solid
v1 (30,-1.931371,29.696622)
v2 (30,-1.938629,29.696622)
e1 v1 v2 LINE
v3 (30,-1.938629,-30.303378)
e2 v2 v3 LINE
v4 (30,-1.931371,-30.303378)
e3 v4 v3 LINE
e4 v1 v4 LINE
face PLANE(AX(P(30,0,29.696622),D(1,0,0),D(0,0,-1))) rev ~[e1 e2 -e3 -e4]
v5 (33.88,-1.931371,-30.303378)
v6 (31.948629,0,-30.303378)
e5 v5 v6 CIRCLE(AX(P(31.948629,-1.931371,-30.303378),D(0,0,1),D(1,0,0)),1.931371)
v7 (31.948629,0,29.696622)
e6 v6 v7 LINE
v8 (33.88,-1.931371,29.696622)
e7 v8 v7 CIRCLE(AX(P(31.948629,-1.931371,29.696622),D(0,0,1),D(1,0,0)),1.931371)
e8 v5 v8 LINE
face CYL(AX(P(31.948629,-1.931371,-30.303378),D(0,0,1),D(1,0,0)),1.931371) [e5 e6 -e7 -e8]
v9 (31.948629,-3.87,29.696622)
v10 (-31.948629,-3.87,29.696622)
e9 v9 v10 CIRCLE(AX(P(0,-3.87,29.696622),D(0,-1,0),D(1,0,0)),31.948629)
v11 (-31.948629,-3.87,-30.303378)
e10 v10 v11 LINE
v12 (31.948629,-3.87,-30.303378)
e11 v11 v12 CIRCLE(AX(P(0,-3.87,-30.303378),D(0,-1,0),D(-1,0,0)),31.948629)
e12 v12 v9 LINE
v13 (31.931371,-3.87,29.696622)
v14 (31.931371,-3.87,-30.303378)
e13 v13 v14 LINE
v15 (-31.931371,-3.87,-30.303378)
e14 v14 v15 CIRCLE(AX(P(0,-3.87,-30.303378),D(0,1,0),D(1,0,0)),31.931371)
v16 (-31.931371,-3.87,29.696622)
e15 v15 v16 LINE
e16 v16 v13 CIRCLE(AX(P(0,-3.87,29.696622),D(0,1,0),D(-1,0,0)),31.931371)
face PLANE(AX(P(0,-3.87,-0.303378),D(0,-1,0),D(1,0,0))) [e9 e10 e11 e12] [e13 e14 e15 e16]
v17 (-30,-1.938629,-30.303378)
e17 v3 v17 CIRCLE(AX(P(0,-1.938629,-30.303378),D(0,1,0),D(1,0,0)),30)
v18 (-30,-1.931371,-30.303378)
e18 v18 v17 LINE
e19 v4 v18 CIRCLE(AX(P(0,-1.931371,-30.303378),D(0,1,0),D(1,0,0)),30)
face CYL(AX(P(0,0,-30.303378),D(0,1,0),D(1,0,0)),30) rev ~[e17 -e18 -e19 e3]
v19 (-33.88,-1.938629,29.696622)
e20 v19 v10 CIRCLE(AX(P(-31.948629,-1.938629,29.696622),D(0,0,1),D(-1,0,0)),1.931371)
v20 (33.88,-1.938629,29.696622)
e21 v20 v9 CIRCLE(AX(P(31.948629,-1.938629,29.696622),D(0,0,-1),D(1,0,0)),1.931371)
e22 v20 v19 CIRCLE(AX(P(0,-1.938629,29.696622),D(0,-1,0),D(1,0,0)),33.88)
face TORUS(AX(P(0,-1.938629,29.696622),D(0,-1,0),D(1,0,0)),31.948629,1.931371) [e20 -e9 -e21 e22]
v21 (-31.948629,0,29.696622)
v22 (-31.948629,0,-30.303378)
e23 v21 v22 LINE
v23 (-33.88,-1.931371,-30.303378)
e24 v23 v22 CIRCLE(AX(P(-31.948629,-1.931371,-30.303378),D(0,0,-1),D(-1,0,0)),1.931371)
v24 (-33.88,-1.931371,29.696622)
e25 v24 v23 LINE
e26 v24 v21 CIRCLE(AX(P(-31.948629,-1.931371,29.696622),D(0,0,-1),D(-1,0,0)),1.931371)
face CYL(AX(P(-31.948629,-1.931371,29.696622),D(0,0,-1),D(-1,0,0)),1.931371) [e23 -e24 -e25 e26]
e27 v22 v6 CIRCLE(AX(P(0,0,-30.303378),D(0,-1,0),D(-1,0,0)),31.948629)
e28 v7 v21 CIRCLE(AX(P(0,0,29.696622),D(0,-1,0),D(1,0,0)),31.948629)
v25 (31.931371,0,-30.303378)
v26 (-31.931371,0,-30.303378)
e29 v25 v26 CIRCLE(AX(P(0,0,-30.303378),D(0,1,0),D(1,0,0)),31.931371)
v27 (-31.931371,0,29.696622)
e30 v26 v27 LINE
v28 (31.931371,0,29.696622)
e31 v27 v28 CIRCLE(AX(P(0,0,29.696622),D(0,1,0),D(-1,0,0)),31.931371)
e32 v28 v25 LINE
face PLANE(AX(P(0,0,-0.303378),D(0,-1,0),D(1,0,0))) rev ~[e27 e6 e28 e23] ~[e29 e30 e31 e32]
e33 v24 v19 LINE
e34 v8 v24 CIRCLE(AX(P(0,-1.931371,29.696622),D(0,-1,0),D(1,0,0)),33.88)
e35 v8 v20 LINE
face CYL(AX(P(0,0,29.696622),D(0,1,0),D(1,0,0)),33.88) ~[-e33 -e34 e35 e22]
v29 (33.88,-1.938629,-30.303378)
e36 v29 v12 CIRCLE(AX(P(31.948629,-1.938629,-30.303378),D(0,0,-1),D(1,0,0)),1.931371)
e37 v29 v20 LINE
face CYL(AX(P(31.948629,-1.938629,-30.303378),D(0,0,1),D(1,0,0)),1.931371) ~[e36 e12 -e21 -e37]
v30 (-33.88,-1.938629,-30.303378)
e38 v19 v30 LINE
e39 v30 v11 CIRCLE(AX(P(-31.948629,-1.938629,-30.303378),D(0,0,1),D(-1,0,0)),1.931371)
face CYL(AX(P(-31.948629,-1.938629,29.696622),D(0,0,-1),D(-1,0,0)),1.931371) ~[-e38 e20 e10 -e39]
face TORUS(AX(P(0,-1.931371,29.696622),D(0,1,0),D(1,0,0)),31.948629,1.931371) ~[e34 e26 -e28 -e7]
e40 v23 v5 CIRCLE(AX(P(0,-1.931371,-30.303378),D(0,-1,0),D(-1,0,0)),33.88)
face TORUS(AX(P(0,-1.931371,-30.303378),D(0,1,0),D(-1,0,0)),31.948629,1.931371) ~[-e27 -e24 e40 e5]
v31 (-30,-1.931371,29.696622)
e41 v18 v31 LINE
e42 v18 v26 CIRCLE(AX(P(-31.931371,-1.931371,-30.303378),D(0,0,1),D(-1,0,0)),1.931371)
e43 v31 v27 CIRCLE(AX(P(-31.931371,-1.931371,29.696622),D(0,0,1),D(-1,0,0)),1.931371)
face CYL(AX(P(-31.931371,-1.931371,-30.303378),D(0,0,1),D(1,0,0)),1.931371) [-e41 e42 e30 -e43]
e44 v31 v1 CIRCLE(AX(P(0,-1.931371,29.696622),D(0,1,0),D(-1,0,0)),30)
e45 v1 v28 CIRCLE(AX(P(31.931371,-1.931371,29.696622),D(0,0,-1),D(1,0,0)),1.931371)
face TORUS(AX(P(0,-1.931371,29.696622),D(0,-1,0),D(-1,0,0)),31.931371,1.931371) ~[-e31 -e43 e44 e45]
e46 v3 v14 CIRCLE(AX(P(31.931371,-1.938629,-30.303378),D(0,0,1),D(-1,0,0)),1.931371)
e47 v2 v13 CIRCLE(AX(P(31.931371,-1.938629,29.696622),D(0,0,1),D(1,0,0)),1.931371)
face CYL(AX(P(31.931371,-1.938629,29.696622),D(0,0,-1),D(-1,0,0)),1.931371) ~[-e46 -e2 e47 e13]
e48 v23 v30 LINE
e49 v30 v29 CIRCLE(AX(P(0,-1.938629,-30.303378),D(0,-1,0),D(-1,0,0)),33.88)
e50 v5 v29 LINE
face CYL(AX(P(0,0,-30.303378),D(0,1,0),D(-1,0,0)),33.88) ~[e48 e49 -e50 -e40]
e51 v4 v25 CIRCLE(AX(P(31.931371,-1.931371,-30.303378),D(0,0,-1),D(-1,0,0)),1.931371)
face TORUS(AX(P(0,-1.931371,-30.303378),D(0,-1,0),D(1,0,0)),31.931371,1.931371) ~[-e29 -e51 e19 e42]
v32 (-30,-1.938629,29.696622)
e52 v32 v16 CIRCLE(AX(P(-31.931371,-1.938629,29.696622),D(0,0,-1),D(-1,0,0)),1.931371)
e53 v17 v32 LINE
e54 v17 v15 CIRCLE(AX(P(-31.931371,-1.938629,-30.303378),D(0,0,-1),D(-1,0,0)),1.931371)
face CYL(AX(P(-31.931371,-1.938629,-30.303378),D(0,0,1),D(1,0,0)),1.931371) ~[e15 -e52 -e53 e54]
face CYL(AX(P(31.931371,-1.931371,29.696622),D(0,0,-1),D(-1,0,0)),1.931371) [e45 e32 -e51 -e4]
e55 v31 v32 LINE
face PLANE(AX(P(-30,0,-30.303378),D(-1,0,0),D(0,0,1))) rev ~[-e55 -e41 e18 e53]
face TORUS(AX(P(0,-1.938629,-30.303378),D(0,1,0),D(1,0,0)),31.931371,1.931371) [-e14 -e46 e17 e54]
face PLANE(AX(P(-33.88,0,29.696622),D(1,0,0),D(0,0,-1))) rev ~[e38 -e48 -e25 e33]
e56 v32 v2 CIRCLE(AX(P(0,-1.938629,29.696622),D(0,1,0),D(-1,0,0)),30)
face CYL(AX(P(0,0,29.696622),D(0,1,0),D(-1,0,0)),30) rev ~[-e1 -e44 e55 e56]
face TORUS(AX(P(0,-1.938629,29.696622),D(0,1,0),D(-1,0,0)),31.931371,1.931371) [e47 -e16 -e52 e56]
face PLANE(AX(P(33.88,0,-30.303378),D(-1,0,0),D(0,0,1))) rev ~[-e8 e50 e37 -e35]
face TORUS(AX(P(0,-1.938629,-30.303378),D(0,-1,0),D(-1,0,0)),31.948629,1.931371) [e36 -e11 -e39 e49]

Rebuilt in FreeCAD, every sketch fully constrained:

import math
import FreeCAD as App
import Part
import Sketcher
Q = App.Units.Quantity


def edges_at(feature, points):
    """Names of the edges that pass closest to the given points."""
    edges = feature.Shape.Edges
    near = lambda p: min(range(len(edges)), key=lambda i: edges[i].distToShape(Part.Vertex(*p))[0])
    return sorted({f"Edge{near(p) + 1}" for p in points})

doc = App.newDocument("Part")
body = doc.addObject("PartDesign::Body", "Body")

# Sketch on XZ plane
sketch1 = doc.addObject("Sketcher::SketchObject", "Sketch")
body.addObject(sketch1)
sketch1.AttachmentSupport = (doc.XZ_Plane, [""])
sketch1.MapMode = "FlatFace"
sketch1.addGeometry([
    Part.ArcOfCircle(Part.Circle(App.Vector(0, 30, 0), App.Vector(0, 0, 1), 34), math.radians(0), math.radians(180)),  # 0
    Part.LineSegment(App.Vector(-34, 30, 0), App.Vector(-34, -30, 0)),  # 1
    Part.ArcOfCircle(Part.Circle(App.Vector(0, -30, 0), App.Vector(0, 0, 1), 34), math.radians(180), math.radians(360)),  # 2
    Part.LineSegment(App.Vector(34, -30, 0), App.Vector(34, 30, 0)),  # 3
    Part.ArcOfCircle(Part.Circle(App.Vector(0, -30, 0), App.Vector(0, 0, 1), 30), math.radians(180), math.radians(360)),  # 4
    Part.LineSegment(App.Vector(-30, -30, 0), App.Vector(-30, 30, 0)),  # 5
    Part.ArcOfCircle(Part.Circle(App.Vector(0, 30, 0), App.Vector(0, 0, 1), 30), math.radians(0), math.radians(180)),  # 6
    Part.LineSegment(App.Vector(30, 30, 0), App.Vector(30, -30, 0)),  # 7
], False)
sketch1.addConstraint([
    Sketcher.Constraint("Tangent", 0, 2, 1, 1),
    Sketcher.Constraint("Tangent", 1, 2, 2, 1),
    Sketcher.Constraint("Tangent", 2, 2, 3, 1),
    Sketcher.Constraint("Tangent", 3, 2, 0, 1),
    Sketcher.Constraint("Tangent", 4, 1, 5, 1),
    Sketcher.Constraint("Tangent", 5, 2, 6, 2),
    Sketcher.Constraint("Tangent", 6, 1, 7, 1),
    Sketcher.Constraint("Tangent", 7, 2, 4, 2),
    Sketcher.Constraint("Vertical", 1),
    Sketcher.Constraint("Vertical", 3),
    Sketcher.Constraint("Vertical", 5),
    Sketcher.Constraint("Vertical", 7),
    Sketcher.Constraint("Coincident", 4, 3, 2, 3),
    Sketcher.Constraint("PointOnObject", 0, 3, -2),
    Sketcher.Constraint("Horizontal", 6, 3, 0, 2),
    Sketcher.Constraint("Radius", 4, Q("30 mm")),
    Sketcher.Constraint("DistanceY", 1, 2, 1, 1, Q("60 mm")),
    Sketcher.Constraint("Radius", 0, Q("33.88 mm")),
    Sketcher.Constraint("DistanceY", -1, 1, 0, 3, Q("29.696622 mm")),
])
pad1 = doc.addObject("PartDesign::Pad", "Pad")
body.addObject(pad1)
pad1.Profile = sketch1
pad1.Length = 3.87
doc.recompute()

fillet = doc.addObject("PartDesign::Fillet", "Fillet")
body.addObject(fillet)
fillet.Base = (pad1, edges_at(pad1, [
    (0, 0, 63.577),
    (-33.88, 0, -0.303),
    (0, 0, -64.183),
    (33.88, 0, -0.303),
    (0, 0, 59.697),
    (30, 0, -0.303),
    (0, 0, -60.303),
    (-30, 0, -0.303),
    (0, -3.87, 63.577),
    (-33.88, -3.87, -0.303),
    (0, -3.87, -64.183),
    (33.88, -3.87, -0.303),
    (0, -3.87, 59.697),
    (30, -3.87, -0.303),
    (0, -3.87, -60.303),
    (-30, -3.87, -0.303),
]))
fillet.Radius = 1.931371

doc.recompute()
